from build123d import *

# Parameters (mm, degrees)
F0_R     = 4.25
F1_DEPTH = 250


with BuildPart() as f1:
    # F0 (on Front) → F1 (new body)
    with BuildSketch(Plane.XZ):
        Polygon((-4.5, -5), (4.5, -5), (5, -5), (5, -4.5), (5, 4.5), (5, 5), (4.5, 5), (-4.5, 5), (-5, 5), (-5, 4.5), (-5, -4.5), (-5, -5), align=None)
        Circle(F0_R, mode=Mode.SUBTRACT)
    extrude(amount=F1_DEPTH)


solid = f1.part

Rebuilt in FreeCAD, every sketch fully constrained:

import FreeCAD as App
import Part
import Sketcher
from FreeCAD import Vector


def add_polygon(sketch, points):
    """Adds a closed chain of lines whose ends are joined by coincident constraints."""
    first, n = sketch.GeometryCount, len(points)
    for a, b in zip(points, points[1:] + points[:1]):
        sketch.addGeometry(Part.LineSegment(App.Vector(*a, 0), App.Vector(*b, 0)), False)
    for i in range(n):
        sketch.addConstraint(Sketcher.Constraint("Coincident", first + i, 2, first + (i + 1) % n, 1))

doc = App.newDocument("Part")
body = doc.addObject("PartDesign::Body", "Body")

sketch1 = body.newObject("Sketcher::SketchObject", "Sketch")
sketch1.AttachmentSupport = (doc.getObject("XZ_Plane"), [""])
sketch1.MapMode = "FlatFace"
add_polygon(sketch1, [(5, -5), (5, 5), (-5, 5), (-5, -5)])
sketch1.addGeometry(Part.Circle(Vector(0, 0, 0), Vector(0, 0, 1), 4.2), False)
sketch1.addConstraint([
    Sketcher.Constraint("Vertical", 0),
    Sketcher.Constraint("Horizontal", 1),
    Sketcher.Constraint("Vertical", 2),
    Sketcher.Constraint("Horizontal", 3),
    Sketcher.Constraint("Coincident", 4, 3, -1, 1),
    Sketcher.Constraint("Symmetric", 0, 2, 2, 2, -1, 1),
    Sketcher.Constraint("Equal", 3, 0),
    Sketcher.Constraint("Diameter", 4, 8.5),
    Sketcher.Constraint("DistanceX", 1, 2, 1, 1, 10.0),
])
pad1 = body.newObject("PartDesign::Pad", "Pad")
pad1.Profile = sketch1
pad1.Length = 250

doc.recompute()
